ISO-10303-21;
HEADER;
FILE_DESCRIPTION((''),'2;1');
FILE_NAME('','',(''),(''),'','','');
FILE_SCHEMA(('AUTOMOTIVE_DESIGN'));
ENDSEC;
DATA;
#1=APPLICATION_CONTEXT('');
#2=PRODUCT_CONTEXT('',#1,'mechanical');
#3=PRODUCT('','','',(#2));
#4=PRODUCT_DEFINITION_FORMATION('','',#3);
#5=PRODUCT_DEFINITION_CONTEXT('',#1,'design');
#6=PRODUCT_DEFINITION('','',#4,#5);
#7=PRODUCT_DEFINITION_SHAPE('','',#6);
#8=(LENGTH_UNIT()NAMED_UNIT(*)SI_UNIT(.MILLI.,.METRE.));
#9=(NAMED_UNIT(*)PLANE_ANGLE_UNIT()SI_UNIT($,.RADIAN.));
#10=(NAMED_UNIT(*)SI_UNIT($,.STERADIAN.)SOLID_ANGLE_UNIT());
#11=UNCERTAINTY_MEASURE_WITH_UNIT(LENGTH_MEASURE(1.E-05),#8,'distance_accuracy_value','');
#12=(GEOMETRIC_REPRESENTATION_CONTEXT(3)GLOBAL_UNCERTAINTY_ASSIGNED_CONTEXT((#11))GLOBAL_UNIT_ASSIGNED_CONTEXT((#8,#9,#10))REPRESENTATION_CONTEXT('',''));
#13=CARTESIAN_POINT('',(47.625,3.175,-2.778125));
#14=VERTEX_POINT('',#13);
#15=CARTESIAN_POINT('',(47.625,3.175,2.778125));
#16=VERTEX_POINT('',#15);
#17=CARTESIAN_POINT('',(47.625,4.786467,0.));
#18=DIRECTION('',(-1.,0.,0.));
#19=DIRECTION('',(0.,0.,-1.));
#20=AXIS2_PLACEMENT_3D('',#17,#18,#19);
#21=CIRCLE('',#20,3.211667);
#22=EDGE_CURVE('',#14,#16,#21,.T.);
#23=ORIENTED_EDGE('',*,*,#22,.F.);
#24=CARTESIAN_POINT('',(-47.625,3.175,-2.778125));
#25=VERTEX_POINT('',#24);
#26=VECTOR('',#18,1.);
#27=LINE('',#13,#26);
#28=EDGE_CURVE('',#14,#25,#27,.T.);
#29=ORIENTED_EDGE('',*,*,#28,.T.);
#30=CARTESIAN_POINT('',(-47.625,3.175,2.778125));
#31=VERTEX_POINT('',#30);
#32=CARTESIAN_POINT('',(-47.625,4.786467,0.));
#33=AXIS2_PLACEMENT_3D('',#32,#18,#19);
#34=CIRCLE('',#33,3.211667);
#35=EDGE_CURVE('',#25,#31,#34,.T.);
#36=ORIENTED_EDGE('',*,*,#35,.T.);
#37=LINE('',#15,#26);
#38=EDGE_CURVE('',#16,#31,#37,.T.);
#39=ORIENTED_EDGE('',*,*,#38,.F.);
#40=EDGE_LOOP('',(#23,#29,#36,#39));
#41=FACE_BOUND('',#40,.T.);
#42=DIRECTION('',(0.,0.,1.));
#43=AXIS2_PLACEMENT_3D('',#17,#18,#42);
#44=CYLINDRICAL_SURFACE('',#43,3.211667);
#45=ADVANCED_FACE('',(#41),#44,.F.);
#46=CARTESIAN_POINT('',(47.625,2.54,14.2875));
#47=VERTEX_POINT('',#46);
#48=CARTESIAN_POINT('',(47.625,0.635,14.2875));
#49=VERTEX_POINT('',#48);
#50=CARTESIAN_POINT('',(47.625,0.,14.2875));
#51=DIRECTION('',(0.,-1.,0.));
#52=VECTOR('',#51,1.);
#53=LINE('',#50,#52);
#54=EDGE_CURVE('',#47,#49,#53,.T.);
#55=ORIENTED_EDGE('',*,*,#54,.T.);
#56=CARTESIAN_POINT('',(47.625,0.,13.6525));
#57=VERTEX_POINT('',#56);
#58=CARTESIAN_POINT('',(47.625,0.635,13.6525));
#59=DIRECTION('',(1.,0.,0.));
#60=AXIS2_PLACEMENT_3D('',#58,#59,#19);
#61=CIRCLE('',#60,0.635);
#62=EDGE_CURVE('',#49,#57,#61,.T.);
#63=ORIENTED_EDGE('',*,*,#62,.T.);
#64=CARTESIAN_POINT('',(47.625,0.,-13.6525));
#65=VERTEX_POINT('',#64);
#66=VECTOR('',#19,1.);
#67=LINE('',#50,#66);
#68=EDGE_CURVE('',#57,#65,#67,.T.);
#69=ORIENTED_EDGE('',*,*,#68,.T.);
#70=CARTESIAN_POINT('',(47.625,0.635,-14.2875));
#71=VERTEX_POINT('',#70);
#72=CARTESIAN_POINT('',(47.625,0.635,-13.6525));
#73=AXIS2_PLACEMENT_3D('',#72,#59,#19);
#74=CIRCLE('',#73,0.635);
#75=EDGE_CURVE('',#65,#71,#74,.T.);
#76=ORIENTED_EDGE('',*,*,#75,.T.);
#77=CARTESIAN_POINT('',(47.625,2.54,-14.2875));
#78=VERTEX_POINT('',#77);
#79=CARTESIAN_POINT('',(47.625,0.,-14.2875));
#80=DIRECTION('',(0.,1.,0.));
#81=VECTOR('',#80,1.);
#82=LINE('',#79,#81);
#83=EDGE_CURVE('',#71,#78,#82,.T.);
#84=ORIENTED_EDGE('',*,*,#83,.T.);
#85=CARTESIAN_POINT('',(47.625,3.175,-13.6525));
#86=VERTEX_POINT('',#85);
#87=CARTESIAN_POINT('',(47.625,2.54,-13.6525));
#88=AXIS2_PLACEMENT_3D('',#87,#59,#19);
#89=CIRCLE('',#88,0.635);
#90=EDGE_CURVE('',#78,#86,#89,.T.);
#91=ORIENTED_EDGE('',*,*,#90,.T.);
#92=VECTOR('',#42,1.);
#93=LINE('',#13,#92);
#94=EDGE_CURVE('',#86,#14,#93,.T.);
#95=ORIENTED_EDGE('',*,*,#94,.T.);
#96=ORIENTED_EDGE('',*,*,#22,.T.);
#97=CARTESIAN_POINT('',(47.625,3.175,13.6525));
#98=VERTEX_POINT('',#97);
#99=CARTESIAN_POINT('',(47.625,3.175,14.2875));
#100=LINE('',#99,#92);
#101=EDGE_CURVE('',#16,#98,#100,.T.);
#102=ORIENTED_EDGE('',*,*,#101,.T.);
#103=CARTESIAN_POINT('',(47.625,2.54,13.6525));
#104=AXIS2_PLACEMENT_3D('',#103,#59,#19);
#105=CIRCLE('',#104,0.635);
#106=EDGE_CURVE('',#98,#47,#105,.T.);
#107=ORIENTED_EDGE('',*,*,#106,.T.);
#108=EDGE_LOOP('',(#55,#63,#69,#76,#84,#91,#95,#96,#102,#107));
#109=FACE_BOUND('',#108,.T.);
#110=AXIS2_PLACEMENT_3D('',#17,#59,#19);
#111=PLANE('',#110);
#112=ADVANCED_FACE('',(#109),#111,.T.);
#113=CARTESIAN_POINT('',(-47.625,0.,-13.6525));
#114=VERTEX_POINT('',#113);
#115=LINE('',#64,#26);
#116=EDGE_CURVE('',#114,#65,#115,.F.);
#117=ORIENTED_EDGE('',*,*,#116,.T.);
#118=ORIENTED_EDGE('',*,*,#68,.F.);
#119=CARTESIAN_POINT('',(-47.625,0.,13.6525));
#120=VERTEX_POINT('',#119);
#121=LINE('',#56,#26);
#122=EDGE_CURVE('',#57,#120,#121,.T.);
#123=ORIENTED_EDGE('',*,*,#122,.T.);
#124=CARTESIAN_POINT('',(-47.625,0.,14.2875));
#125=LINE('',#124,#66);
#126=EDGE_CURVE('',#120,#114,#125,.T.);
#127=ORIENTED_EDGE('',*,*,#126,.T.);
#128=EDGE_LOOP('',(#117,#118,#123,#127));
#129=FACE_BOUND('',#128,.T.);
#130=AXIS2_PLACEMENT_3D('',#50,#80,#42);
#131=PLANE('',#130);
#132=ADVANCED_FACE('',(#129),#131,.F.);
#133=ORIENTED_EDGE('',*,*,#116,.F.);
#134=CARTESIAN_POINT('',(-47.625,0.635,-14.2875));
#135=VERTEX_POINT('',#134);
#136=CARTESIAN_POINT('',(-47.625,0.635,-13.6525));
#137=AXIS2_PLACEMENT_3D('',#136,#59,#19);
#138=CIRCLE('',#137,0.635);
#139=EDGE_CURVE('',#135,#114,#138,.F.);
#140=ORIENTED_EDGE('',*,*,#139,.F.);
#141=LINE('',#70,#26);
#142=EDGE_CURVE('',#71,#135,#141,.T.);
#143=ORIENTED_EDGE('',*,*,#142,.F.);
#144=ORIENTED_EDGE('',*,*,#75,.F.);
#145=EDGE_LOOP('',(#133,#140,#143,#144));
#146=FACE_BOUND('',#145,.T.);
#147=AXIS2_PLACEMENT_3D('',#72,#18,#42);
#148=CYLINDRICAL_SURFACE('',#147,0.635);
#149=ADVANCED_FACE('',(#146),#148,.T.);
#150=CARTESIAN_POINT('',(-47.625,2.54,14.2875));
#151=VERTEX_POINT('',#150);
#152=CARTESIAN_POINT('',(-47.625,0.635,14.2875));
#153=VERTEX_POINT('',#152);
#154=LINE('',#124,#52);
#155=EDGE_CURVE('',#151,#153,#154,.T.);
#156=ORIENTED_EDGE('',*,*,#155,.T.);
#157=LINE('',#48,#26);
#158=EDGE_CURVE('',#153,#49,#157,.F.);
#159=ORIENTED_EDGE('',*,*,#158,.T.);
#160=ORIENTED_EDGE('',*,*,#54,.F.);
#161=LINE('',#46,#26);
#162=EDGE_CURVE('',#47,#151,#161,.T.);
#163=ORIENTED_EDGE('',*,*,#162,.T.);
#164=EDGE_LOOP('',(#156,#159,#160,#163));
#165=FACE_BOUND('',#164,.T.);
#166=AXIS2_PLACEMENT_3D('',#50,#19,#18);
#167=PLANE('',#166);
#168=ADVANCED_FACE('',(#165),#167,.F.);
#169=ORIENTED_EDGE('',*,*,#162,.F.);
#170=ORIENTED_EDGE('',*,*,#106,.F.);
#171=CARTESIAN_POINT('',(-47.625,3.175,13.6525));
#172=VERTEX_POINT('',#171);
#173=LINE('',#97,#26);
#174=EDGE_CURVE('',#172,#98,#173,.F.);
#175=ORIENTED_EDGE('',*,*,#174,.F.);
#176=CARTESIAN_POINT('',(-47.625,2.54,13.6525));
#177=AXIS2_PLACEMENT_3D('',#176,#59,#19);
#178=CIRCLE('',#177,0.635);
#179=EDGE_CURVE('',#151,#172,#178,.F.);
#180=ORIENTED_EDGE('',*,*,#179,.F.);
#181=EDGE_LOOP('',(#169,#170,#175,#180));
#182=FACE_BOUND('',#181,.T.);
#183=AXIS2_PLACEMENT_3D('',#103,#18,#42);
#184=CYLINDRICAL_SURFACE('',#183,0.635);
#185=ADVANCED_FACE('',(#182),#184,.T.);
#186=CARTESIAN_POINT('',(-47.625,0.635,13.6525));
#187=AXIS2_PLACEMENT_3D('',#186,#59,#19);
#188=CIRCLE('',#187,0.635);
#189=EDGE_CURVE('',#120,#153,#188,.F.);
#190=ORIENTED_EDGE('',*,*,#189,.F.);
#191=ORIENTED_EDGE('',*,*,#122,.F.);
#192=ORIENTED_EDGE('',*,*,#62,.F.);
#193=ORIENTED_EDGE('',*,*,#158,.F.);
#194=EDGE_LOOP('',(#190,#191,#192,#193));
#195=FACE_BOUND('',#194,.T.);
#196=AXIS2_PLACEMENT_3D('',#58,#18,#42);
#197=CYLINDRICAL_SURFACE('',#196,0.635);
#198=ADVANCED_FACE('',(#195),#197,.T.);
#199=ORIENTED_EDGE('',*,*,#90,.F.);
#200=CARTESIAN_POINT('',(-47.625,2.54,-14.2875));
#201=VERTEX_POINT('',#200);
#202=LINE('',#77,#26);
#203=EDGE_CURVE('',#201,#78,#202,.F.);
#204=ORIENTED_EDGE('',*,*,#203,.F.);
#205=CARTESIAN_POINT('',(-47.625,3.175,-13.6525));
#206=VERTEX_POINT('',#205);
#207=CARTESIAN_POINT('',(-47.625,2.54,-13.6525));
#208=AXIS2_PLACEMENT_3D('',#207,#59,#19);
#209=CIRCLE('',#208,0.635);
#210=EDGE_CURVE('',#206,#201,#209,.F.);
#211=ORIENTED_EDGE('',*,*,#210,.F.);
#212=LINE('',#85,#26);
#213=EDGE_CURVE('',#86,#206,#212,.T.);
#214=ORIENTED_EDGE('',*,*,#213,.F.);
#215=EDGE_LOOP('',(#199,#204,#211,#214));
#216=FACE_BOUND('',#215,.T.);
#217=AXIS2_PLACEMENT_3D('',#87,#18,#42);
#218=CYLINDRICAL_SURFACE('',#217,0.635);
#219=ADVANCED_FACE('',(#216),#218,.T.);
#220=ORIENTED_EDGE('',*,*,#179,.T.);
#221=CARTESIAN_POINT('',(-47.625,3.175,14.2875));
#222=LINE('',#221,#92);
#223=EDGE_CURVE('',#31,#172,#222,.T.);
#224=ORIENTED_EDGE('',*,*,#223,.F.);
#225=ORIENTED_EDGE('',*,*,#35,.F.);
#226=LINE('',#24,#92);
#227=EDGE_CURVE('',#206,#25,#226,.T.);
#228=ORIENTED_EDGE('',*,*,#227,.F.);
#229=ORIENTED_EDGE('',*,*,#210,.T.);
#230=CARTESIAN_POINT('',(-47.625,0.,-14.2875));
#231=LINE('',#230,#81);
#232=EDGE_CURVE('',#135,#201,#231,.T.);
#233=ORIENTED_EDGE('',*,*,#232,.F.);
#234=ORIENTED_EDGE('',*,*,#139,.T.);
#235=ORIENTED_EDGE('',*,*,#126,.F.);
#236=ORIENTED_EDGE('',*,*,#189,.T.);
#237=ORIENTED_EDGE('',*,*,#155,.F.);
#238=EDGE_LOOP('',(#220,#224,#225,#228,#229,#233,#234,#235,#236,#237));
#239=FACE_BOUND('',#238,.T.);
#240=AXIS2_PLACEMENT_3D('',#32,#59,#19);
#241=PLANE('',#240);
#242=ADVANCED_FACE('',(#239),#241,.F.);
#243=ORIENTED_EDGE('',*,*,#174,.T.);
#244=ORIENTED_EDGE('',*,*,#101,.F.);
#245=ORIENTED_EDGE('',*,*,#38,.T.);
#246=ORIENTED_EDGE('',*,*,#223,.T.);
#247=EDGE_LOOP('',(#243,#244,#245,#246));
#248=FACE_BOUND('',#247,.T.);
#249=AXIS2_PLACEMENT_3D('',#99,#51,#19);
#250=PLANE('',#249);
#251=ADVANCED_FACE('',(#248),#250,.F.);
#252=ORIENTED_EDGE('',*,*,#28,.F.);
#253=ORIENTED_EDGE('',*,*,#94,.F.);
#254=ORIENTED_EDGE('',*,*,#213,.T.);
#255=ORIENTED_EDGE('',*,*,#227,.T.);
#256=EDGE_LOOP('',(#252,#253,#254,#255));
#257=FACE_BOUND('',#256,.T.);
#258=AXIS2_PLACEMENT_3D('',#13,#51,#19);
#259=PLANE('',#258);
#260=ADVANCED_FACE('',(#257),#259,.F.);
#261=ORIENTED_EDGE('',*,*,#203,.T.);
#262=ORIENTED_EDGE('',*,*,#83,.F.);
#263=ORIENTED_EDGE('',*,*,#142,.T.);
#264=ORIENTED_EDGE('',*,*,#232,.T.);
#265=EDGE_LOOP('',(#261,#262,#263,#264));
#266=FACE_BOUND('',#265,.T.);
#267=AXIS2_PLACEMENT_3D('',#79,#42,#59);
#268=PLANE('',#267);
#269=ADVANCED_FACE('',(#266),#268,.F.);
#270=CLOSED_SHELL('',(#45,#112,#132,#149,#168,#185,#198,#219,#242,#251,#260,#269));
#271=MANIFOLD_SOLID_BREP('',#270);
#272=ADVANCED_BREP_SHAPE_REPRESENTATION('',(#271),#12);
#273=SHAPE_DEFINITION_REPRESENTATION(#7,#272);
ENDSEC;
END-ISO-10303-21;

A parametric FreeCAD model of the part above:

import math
import FreeCAD as App
import Part
import Sketcher

V = App.Vector
Q = App.Units.Quantity


def edges_at(feature, points):
    """Names of the edges that pass closest to the given points."""
    edges = feature.Shape.Edges
    near = lambda p: min(range(len(edges)), key=lambda i: edges[i].distToShape(Part.Vertex(*p))[0])
    return sorted({f"Edge{near(p) + 1}" for p in points})

doc = App.newDocument("Part")
params = doc.addObject("Spreadsheet::Sheet", "Params")
for row, (alias, value) in enumerate([
    ("sketch1_width", "0.125 in"),
    ("sketch1_height", "0.453125 in"),
    ("sketch1_height2", "1.125 in"),
    ("pad1_length", "3.75 in"),
    ("fillet_radius", "0.025 in"),
], start=1):
    params.set(f"A{row}", alias)
    params.set(f"B{row}", "=" + value)
    params.setAlias(f"B{row}", alias)

body = doc.addObject("PartDesign::Body", "Body")

sketch1 = doc.addObject("Sketcher::SketchObject", "Sketch")
body.addObject(sketch1)
sketch1.AttachmentSupport = (doc.YZ_Plane, [""])
sketch1.MapMode = "FlatFace"
sketch1.addGeometry(Part.LineSegment(V(3.175, 2.778125, 0), V(3.175, 14.2875, 0)), False)
sketch1.addGeometry(Part.LineSegment(V(3.175, 14.2875, 0), V(0, 14.2875, 0)), False)
sketch1.addGeometry(Part.LineSegment(V(0, 14.2875, 0), V(0, -14.2875, 0)), False)
sketch1.addGeometry(Part.LineSegment(V(0, -14.2875, 0), V(3.175, -14.2875, 0)), False)
sketch1.addGeometry(Part.LineSegment(V(3.175, -14.2875, 0), V(3.175, -2.778125, 0)), False)
sketch1.addGeometry(Part.ArcOfCircle(Part.Circle(V(4.786467, 0, 0), V(0, 0, 1), 3.211667), math.radians(120.116115), math.radians(239.883885)), False)
sketch1.addConstraint(Sketcher.Constraint("Coincident", 0, 2, 1, 1))
sketch1.addConstraint(Sketcher.Constraint("Coincident", 1, 2, 2, 1))
sketch1.addConstraint(Sketcher.Constraint("Coincident", 2, 2, 3, 1))
sketch1.addConstraint(Sketcher.Constraint("Coincident", 3, 2, 4, 1))
sketch1.addConstraint(Sketcher.Constraint("Coincident", 4, 2, 5, 2))
sketch1.addConstraint(Sketcher.Constraint("Coincident", 5, 1, 0, 1))
sketch1.addConstraint(Sketcher.Constraint("Vertical", 0))
sketch1.addConstraint(Sketcher.Constraint("Horizontal", 1))
sketch1.addConstraint(Sketcher.Constraint("Vertical", 2))
sketch1.addConstraint(Sketcher.Constraint("Horizontal", 3))
sketch1.addConstraint(Sketcher.Constraint("Vertical", 4))
sketch1.addConstraint(Sketcher.Constraint("Symmetric", 1, 2, 2, 2, -1, 1))
sketch1.addConstraint(Sketcher.Constraint("Symmetric", 4, 2, 5, 1, -1))
sketch1.addConstraint(Sketcher.Constraint("DistanceX", 1, 2, 1, 1, Q("0.125 in")))
sketch1.addConstraint(Sketcher.Constraint("DistanceY", 0, 1, 0, 2, Q("0.453125 in")))
sketch1.addConstraint(Sketcher.Constraint("DistanceY", 2, 2, 2, 1, Q("1.125 in")))
sketch1.addConstraint(Sketcher.Constraint("Radius", 5, Q("3.211667 mm")))
sketch1.setExpression("Constraints[13]", "Params.sketch1_width")
sketch1.setExpression("Constraints[14]", "Params.sketch1_height")
sketch1.setExpression("Constraints[15]", "Params.sketch1_height2")
pad1 = doc.addObject("PartDesign::Pad", "Pad")
body.addObject(pad1)
pad1.Profile = sketch1
pad1.setExpression("Length", "Params.pad1_length")
pad1.Midplane = True
doc.recompute()

fillet = doc.addObject("PartDesign::Fillet", "Fillet")
body.addObject(fillet)
fillet.Base = (pad1, edges_at(pad1, [
    (0, 3.175, 14.287),
    (0, 3.175, -14.287),
    (0, 0, -14.287),
    (0, 0, 14.287),
]))
fillet.setExpression("Radius", "Params.fillet_radius")

doc.recompute()
